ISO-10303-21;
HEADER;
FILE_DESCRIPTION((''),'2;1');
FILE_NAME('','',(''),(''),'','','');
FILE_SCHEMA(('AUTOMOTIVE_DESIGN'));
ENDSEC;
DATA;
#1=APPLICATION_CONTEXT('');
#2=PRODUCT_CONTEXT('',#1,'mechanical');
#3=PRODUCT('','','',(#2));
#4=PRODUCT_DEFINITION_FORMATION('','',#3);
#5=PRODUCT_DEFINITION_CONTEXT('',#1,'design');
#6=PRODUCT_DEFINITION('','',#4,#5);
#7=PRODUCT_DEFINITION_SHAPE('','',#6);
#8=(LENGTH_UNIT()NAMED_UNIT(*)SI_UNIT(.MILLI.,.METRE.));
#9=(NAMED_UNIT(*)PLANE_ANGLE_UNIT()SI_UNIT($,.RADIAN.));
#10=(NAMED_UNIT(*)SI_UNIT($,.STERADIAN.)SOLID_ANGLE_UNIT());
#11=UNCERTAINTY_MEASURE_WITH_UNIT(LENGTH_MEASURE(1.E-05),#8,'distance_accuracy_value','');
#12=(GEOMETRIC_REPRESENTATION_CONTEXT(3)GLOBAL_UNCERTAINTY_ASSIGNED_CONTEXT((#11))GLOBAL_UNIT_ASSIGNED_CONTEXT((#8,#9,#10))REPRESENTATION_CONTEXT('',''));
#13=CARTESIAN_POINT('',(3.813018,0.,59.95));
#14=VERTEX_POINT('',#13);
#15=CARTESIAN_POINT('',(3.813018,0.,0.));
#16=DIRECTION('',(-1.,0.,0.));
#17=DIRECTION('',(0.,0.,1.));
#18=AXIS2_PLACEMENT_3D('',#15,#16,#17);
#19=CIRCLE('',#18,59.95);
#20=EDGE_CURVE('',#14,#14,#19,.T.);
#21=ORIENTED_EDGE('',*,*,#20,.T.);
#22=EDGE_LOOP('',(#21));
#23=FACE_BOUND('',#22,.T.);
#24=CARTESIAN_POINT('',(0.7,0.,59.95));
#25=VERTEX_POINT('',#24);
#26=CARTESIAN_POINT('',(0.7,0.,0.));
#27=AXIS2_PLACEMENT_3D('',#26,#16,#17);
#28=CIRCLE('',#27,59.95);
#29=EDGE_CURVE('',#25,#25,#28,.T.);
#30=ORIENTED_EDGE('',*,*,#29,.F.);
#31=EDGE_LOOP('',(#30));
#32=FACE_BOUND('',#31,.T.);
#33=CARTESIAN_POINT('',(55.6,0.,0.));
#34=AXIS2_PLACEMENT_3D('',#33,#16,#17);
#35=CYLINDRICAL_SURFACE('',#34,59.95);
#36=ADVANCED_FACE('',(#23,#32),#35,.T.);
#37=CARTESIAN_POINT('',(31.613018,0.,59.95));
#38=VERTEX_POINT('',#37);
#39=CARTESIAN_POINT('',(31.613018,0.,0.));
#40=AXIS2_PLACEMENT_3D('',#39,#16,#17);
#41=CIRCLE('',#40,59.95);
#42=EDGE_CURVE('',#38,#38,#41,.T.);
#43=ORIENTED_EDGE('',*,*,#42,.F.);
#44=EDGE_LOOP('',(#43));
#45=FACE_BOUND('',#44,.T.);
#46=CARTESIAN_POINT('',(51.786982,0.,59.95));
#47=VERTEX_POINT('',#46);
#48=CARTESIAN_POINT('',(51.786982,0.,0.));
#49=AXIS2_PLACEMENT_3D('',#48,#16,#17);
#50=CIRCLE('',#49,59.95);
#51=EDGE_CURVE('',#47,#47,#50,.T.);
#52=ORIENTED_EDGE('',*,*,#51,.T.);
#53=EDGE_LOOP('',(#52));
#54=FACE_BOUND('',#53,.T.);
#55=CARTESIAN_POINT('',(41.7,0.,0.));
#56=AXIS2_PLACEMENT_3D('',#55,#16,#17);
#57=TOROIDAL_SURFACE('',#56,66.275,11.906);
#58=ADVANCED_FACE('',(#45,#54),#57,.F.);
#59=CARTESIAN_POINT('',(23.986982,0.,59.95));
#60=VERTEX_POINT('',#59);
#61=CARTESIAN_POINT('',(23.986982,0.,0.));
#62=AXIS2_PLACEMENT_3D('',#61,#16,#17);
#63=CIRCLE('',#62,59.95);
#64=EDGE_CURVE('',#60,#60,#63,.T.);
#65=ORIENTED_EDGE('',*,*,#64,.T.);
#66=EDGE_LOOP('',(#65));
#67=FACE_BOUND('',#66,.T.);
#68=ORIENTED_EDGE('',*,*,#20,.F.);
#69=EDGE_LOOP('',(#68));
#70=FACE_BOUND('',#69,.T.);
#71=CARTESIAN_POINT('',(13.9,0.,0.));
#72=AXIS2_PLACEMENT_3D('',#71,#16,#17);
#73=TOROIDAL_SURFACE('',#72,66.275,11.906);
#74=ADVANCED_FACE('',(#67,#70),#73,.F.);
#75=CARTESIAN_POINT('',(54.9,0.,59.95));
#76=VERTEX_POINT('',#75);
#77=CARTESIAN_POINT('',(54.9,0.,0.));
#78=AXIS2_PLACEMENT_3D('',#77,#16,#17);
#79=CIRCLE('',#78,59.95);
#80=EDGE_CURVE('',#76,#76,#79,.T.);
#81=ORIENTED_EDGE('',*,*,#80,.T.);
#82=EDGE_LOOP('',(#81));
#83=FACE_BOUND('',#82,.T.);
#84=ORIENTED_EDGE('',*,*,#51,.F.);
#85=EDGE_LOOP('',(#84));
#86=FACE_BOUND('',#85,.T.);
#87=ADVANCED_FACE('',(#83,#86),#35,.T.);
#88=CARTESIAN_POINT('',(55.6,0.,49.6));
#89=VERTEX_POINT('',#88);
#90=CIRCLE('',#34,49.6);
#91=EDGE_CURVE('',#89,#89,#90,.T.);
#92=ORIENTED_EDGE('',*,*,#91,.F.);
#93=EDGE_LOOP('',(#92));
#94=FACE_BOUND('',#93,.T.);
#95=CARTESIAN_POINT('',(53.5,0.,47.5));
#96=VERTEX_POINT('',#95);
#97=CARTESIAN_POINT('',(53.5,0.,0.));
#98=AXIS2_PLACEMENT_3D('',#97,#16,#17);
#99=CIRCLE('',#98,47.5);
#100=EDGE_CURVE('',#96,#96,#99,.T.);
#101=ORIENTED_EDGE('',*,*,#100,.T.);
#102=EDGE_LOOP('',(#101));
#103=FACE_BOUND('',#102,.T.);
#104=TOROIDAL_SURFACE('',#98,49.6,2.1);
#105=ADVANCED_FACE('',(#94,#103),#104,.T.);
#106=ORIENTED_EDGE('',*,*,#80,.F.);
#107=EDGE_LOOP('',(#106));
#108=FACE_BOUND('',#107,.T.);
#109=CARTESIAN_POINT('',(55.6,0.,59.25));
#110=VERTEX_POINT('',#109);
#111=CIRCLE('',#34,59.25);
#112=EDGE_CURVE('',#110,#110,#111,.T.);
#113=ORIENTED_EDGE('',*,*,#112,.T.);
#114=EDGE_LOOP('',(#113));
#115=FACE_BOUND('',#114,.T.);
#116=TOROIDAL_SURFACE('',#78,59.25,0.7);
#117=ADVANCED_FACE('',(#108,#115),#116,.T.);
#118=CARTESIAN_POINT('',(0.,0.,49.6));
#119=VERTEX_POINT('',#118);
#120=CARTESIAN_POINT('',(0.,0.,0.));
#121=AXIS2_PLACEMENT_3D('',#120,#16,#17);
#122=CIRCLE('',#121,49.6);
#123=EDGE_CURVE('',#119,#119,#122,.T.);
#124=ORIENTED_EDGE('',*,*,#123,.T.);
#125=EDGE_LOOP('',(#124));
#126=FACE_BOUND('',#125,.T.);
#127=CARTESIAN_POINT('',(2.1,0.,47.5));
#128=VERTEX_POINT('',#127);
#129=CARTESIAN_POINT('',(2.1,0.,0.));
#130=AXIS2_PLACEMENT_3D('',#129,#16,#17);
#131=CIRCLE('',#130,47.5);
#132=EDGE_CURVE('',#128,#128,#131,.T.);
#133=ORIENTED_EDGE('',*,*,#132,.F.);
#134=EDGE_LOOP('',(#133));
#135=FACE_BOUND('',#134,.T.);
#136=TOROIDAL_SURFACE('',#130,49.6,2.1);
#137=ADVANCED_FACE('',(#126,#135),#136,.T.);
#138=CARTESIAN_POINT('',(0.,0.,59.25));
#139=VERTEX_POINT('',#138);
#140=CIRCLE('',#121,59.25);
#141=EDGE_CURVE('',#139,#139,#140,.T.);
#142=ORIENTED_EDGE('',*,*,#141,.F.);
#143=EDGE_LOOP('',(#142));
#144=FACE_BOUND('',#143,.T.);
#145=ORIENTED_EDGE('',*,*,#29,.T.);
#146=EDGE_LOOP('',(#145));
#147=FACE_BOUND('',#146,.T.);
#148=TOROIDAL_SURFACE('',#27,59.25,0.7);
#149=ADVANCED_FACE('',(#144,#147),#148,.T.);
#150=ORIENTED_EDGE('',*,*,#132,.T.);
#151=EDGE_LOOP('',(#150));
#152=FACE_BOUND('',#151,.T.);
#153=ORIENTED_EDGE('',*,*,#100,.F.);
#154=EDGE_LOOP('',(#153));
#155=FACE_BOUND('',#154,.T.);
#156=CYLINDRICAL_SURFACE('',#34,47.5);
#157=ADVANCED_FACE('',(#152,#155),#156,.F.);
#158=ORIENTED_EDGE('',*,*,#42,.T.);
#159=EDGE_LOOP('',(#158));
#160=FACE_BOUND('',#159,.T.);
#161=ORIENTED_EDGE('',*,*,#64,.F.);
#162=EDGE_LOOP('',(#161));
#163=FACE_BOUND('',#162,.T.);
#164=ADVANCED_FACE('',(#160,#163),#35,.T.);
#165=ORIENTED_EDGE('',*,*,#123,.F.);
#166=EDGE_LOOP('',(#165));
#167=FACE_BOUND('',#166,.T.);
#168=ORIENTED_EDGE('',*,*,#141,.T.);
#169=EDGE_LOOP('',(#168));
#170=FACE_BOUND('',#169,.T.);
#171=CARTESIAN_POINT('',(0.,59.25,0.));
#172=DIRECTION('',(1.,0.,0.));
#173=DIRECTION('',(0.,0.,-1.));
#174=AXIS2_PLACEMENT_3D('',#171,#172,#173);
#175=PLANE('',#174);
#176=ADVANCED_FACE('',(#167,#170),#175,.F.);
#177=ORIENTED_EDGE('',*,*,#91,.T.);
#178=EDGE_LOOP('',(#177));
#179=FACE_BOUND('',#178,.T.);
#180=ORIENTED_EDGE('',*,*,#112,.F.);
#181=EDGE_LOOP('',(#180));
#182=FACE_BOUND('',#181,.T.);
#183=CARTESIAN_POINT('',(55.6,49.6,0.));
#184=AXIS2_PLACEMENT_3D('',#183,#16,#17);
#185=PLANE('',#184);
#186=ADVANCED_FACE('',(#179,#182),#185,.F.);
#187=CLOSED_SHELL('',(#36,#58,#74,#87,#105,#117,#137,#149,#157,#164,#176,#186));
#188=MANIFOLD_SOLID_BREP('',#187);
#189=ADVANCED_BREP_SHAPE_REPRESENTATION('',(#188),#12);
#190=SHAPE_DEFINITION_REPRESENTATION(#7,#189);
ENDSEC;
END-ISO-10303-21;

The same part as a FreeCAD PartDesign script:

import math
import FreeCAD as App
import Part
import Sketcher
from FreeCAD import Vector

doc = App.newDocument("Part")
body = doc.addObject("PartDesign::Body", "Body")

sketch1 = body.newObject("Sketcher::SketchObject", "Sketch")
sketch1.AttachmentSupport = (doc.getObject("XY_Plane"), [""])
sketch1.MapMode = "FlatFace"
sketch1.addGeometry(Part.LineSegment(Vector(2.1, 47.5, 0), Vector(53.5, 47.5, 0)), False)
sketch1.addGeometry(Part.ArcOfCircle(Part.Circle(Vector(53.5, 49.6, 0), Vector(0, 0, 1), 2.1), math.radians(-90), math.radians(0)), False)
sketch1.addGeometry(Part.LineSegment(Vector(55.6, 49.6, 0), Vector(55.6, 59.2, 0)), False)
sketch1.addGeometry(Part.ArcOfCircle(Part.Circle(Vector(54.9, 59.3, 0), Vector(0, 0, 1), 0.7), math.radians(0), math.radians(90)), False)
sketch1.addGeometry(Part.LineSegment(Vector(54.9, 60, 0), Vector(51.8, 60, 0)), False)
sketch1.addGeometry(Part.ArcOfCircle(Part.Circle(Vector(41.7, 66.3, 0), Vector(0, 0, 1), 11.9), math.radians(-148), math.radians(-32)), False)
sketch1.addGeometry(Part.LineSegment(Vector(31.6, 60, 0), Vector(24, 60, 0)), False)
sketch1.addGeometry(Part.ArcOfCircle(Part.Circle(Vector(13.9, 66.3, 0), Vector(0, 0, 1), 11.9), math.radians(-148), math.radians(-32)), False)
sketch1.addGeometry(Part.LineSegment(Vector(3.8, 60, 0), Vector(0.7, 60, 0)), False)
sketch1.addGeometry(Part.ArcOfCircle(Part.Circle(Vector(0.7, 59.3, 0), Vector(0, 0, 1), 0.7), math.radians(90), math.radians(180)), False)
sketch1.addGeometry(Part.LineSegment(Vector(0, 59.2, 0), Vector(0, 49.6, 0)), False)
sketch1.addGeometry(Part.ArcOfCircle(Part.Circle(Vector(2.1, 49.6, 0), Vector(0, 0, 1), 2.1), math.radians(-180), math.radians(-90)), False)
sketch1.addConstraint(Sketcher.Constraint("Tangent", 0, 2, 1, 1))
sketch1.addConstraint(Sketcher.Constraint("Tangent", 1, 2, 2, 1))
sketch1.addConstraint(Sketcher.Constraint("Tangent", 2, 2, 3, 1))
sketch1.addConstraint(Sketcher.Constraint("Tangent", 3, 2, 4, 1))
sketch1.addConstraint(Sketcher.Constraint("Coincident", 4, 2, 5, 2))
sketch1.addConstraint(Sketcher.Constraint("Coincident", 5, 1, 6, 1))
sketch1.addConstraint(Sketcher.Constraint("Coincident", 6, 2, 7, 2))
sketch1.addConstraint(Sketcher.Constraint("Coincident", 7, 1, 8, 1))
sketch1.addConstraint(Sketcher.Constraint("Tangent", 8, 2, 9, 1))
sketch1.addConstraint(Sketcher.Constraint("Tangent", 9, 2, 10, 1))
sketch1.addConstraint(Sketcher.Constraint("Tangent", 10, 2, 11, 1))
sketch1.addConstraint(Sketcher.Constraint("Tangent", 11, 2, 0, 1))
sketch1.addConstraint(Sketcher.Constraint("Horizontal", 0))
sketch1.addConstraint(Sketcher.Constraint("Vertical", 2))
sketch1.addConstraint(Sketcher.Constraint("Horizontal", 4))
sketch1.addConstraint(Sketcher.Constraint("Horizontal", 6))
sketch1.addConstraint(Sketcher.Constraint("Horizontal", 8))
sketch1.addConstraint(Sketcher.Constraint("Vertical", 10))
sketch1.addConstraint(Sketcher.Constraint("Equal", 5, 7))
sketch1.addConstraint(Sketcher.Constraint("Equal", 3, 9))
sketch1.addConstraint(Sketcher.Constraint("Equal", 1, 11))
sketch1.addConstraint(Sketcher.Constraint("PointOnObject", 9, 2, -2))
sketch1.addConstraint(Sketcher.Constraint("Horizontal", 5, 3, 7, 3))
sketch1.addConstraint(Sketcher.Constraint("Horizontal", 3, 3, 9, 3))
sketch1.addConstraint(Sketcher.Constraint("Horizontal", 4, 2, 5, 1))
sketch1.addConstraint(Sketcher.Constraint("Equal", 4, 8))
sketch1.addConstraint(Sketcher.Constraint("Radius", 1, 2.1))
sketch1.addConstraint(Sketcher.Constraint("Radius", 3, 0.7))
sketch1.addConstraint(Sketcher.Constraint("DistanceX", 0, 1, 0, 2, 51.4))
sketch1.addConstraint(Sketcher.Constraint("Radius", 5, 11.906))
sketch1.addConstraint(Sketcher.Constraint("DistanceX", 7, 3, 3, 3, 41.0))
sketch1.addConstraint(Sketcher.Constraint("DistanceY", 2, 1, 2, 2, 9.65))
sketch1.addConstraint(Sketcher.Constraint("DistanceY", -1, 1, 1, 3, 49.6))
sketch1.addConstraint(Sketcher.Constraint("DistanceY", -1, 1, 5, 3, 66.275))
revolution = body.newObject("PartDesign::Revolution", "Revolution")
revolution.Profile = sketch1
revolution.ReferenceAxis = (sketch1, ["H_Axis"])
revolution.Angle = 360

doc.recompute()
